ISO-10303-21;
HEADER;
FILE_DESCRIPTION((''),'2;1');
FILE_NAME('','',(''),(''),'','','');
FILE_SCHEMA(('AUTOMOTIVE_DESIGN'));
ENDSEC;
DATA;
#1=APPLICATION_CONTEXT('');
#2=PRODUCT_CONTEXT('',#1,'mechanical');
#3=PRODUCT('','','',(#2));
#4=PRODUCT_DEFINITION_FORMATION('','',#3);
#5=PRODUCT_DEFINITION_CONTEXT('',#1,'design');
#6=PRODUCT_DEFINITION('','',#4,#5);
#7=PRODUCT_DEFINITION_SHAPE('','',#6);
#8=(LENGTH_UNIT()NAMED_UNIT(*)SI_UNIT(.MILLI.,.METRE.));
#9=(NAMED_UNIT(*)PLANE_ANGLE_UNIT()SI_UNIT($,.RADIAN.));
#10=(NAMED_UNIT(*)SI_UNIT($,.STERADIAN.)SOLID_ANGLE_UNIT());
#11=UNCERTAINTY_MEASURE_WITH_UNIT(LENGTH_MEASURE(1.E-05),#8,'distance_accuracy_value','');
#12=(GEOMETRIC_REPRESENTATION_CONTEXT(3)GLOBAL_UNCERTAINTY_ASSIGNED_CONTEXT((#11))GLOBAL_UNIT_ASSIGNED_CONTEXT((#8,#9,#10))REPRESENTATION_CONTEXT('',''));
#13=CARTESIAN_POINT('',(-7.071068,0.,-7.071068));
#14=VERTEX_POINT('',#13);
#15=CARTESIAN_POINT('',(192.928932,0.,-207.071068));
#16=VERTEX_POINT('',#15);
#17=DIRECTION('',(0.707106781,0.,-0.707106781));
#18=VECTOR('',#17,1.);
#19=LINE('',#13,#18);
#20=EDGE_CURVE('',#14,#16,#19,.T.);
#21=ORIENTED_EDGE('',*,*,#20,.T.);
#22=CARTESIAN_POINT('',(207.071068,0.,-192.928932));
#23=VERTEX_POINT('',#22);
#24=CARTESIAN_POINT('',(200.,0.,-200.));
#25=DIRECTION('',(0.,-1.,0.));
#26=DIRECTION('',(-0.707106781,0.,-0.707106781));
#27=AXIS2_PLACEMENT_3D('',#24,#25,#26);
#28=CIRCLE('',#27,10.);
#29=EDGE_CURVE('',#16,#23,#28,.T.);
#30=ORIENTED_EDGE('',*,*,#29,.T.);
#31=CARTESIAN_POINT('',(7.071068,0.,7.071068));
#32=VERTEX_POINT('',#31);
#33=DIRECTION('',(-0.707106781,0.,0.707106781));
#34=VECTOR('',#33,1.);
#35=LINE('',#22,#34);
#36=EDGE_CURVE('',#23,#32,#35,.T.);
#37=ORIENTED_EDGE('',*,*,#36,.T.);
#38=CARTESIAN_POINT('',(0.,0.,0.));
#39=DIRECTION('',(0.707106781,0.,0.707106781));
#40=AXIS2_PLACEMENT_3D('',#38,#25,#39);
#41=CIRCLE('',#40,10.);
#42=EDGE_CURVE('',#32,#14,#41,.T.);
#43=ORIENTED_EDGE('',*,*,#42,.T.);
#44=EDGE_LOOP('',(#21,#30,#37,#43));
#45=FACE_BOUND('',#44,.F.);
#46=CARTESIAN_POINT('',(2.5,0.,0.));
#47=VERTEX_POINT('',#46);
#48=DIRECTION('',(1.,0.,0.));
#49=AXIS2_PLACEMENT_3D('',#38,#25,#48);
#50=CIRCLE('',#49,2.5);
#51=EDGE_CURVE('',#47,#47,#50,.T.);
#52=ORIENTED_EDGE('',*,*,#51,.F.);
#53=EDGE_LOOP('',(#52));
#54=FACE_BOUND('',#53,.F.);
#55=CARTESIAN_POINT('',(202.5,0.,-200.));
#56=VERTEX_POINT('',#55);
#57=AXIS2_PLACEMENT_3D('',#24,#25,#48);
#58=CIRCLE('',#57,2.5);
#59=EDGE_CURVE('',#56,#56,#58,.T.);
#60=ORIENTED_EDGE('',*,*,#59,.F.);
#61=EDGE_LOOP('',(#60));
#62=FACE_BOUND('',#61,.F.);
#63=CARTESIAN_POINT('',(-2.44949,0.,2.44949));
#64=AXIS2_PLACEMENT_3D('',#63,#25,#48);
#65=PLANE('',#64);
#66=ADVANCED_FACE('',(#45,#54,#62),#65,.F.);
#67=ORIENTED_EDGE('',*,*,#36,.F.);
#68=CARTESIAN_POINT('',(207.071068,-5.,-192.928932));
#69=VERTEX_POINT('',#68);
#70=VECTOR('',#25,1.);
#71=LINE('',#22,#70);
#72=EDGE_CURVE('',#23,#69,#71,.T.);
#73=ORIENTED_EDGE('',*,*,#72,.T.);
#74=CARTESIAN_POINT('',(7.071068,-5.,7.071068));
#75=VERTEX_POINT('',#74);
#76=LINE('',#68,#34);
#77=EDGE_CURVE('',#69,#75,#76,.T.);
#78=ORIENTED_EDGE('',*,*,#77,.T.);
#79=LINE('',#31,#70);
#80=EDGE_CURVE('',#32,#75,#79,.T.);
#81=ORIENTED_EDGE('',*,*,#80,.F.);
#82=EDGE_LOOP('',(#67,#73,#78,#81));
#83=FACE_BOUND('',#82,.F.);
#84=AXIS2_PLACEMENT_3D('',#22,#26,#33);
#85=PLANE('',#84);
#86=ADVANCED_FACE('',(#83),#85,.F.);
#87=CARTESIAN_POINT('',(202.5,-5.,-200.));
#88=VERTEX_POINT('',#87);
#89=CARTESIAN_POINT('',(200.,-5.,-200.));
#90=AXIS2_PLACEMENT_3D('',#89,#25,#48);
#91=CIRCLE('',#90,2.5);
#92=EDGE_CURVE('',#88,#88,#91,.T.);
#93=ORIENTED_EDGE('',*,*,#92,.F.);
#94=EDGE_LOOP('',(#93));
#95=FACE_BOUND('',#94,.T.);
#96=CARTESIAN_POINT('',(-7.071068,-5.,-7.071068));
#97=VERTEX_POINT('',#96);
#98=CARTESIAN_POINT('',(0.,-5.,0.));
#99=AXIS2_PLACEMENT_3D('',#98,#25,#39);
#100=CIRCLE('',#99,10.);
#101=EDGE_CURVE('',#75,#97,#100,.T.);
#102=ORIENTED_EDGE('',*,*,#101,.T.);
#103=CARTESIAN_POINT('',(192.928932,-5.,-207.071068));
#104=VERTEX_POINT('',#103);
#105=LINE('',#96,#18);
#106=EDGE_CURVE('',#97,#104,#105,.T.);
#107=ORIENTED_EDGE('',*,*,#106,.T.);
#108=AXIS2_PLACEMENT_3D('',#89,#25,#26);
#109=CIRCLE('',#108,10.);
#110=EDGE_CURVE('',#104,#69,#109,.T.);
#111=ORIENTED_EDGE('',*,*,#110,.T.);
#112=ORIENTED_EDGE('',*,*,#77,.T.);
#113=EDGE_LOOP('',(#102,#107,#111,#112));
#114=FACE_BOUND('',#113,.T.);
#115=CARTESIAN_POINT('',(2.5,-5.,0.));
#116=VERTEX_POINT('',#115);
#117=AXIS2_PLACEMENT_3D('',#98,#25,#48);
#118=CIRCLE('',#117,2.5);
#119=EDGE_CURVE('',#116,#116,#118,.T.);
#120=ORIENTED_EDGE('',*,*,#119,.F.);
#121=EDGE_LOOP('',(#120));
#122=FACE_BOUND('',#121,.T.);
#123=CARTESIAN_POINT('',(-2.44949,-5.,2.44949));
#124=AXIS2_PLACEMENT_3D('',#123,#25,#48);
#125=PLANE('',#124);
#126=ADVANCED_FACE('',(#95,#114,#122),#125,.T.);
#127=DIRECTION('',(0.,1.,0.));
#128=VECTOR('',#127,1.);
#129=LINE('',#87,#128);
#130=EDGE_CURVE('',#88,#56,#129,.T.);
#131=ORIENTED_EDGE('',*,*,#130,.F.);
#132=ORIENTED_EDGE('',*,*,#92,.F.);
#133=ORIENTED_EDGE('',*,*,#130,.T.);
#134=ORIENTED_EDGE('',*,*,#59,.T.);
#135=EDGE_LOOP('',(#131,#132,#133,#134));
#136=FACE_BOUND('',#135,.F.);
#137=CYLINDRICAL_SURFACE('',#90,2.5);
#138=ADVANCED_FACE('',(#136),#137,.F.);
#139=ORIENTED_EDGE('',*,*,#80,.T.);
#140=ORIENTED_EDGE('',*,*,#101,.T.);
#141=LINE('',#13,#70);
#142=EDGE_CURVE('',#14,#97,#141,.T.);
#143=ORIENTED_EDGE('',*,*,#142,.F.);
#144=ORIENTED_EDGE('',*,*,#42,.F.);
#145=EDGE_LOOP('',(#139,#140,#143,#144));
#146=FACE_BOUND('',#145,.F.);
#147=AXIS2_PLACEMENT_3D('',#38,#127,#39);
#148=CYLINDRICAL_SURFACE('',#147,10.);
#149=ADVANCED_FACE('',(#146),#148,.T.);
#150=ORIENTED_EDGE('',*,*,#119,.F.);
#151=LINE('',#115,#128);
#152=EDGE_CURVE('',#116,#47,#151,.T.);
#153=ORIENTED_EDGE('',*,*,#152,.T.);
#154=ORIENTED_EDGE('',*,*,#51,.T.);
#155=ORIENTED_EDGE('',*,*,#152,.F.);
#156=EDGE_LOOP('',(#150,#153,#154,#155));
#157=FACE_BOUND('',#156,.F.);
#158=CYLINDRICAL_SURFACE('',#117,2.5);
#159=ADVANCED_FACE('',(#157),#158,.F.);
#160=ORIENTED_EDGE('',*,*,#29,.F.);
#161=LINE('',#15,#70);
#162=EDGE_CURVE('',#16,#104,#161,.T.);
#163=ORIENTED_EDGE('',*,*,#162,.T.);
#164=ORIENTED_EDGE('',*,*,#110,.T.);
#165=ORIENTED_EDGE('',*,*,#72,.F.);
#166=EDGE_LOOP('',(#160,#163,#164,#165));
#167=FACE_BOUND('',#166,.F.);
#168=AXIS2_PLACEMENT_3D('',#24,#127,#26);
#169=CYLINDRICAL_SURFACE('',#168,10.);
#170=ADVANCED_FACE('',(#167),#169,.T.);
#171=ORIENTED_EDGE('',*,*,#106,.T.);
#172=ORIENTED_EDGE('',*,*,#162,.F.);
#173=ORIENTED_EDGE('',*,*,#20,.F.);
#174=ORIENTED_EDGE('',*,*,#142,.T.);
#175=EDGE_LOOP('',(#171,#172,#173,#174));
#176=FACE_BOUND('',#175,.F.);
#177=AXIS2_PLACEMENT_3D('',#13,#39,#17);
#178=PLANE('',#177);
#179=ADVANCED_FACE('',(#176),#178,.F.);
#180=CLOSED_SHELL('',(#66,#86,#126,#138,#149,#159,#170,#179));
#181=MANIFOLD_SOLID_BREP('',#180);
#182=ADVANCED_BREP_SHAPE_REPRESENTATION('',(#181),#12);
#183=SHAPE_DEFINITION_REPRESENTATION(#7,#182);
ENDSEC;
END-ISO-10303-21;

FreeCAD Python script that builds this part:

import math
import FreeCAD as App
import Part
import Sketcher

V = App.Vector
Q = App.Units.Quantity

doc = App.newDocument("Part")
body = doc.addObject("PartDesign::Body", "Body")

# Sketch on XZ plane
sketch1 = body.newObject("Sketcher::SketchObject", "Sketch")
sketch1.AttachmentSupport = (doc.getObject("XZ_Plane"), [""])
sketch1.MapMode = "FlatFace"
sketch1.addGeometry([
    Part.ArcOfCircle(Part.Circle(V(0, 0, 0), V(0, 0, 1), 10), math.radians(45), math.radians(225)),
    Part.LineSegment(V(-7, -7, 0), V(193, -207, 0)),
    Part.ArcOfCircle(Part.Circle(V(200, -200, 0), V(0, 0, 1), 10), math.radians(-135), math.radians(45)),
    Part.LineSegment(V(207, -193, 0), V(7, 7, 0)),
], False)
sketch1.addConstraint([
    Sketcher.Constraint("Tangent", 0, 2, 1, 1),
    Sketcher.Constraint("Tangent", 1, 2, 2, 1),
    Sketcher.Constraint("Tangent", 2, 2, 3, 1),
    Sketcher.Constraint("Tangent", 3, 2, 0, 1),
    Sketcher.Constraint("Coincident", 0, 3, -1, 1),
    Sketcher.Constraint("Equal", 0, 2),
    Sketcher.Constraint("Radius", 0, Q("10 mm")),
    Sketcher.Constraint("Angle", 1, Q("-45 deg")),
    Sketcher.Constraint("DistanceX", -1, 1, 2, 3, Q("200 mm")),
])
pad1 = body.newObject("PartDesign::Pad", "Pad")
pad1.Profile = sketch1
pad1.Length = 5

# Sketch on XZ plane
sketch2 = body.newObject("Sketcher::SketchObject", "Sketch001")
sketch2.AttachmentSupport = (doc.getObject("XZ_Plane"), [""])
sketch2.MapMode = "FlatFace"
sketch2.AttachmentOffset = App.Placement(V(0, 0, 5), App.Rotation())
sketch2.addGeometry(Part.Circle(V(0, 0, 0), V(0, 0, 1), 2.5), False)
sketch2.addConstraint([
    Sketcher.Constraint("Coincident", 0, 3, -1, 1),
    Sketcher.Constraint("Diameter", 0, Q("5 mm")),
])
pocket1 = body.newObject("PartDesign::Pocket", "Pocket")
pocket1.Profile = sketch2
pocket1.Length = 25

# Sketch on XZ plane
sketch3 = body.newObject("Sketcher::SketchObject", "Sketch002")
sketch3.AttachmentSupport = (doc.getObject("XZ_Plane"), [""])
sketch3.MapMode = "FlatFace"
sketch3.AttachmentOffset = App.Placement(V(0, 0, 5), App.Rotation())
sketch3.addGeometry(Part.Circle(V(200, -200, 0), V(0, 0, 1), 2.5), False)
sketch3.addConstraint([
    Sketcher.Constraint("Diameter", 0, Q("5 mm")),
    Sketcher.Constraint("DistanceX", -1, 1, 0, 3, Q("200 mm")),
    Sketcher.Constraint("DistanceY", 0, 3, -1, 1, Q("200 mm")),
])
pocket2 = body.newObject("PartDesign::Pocket", "Pocket001")
pocket2.Profile = sketch3
pocket2.Length = 25

doc.recompute()
